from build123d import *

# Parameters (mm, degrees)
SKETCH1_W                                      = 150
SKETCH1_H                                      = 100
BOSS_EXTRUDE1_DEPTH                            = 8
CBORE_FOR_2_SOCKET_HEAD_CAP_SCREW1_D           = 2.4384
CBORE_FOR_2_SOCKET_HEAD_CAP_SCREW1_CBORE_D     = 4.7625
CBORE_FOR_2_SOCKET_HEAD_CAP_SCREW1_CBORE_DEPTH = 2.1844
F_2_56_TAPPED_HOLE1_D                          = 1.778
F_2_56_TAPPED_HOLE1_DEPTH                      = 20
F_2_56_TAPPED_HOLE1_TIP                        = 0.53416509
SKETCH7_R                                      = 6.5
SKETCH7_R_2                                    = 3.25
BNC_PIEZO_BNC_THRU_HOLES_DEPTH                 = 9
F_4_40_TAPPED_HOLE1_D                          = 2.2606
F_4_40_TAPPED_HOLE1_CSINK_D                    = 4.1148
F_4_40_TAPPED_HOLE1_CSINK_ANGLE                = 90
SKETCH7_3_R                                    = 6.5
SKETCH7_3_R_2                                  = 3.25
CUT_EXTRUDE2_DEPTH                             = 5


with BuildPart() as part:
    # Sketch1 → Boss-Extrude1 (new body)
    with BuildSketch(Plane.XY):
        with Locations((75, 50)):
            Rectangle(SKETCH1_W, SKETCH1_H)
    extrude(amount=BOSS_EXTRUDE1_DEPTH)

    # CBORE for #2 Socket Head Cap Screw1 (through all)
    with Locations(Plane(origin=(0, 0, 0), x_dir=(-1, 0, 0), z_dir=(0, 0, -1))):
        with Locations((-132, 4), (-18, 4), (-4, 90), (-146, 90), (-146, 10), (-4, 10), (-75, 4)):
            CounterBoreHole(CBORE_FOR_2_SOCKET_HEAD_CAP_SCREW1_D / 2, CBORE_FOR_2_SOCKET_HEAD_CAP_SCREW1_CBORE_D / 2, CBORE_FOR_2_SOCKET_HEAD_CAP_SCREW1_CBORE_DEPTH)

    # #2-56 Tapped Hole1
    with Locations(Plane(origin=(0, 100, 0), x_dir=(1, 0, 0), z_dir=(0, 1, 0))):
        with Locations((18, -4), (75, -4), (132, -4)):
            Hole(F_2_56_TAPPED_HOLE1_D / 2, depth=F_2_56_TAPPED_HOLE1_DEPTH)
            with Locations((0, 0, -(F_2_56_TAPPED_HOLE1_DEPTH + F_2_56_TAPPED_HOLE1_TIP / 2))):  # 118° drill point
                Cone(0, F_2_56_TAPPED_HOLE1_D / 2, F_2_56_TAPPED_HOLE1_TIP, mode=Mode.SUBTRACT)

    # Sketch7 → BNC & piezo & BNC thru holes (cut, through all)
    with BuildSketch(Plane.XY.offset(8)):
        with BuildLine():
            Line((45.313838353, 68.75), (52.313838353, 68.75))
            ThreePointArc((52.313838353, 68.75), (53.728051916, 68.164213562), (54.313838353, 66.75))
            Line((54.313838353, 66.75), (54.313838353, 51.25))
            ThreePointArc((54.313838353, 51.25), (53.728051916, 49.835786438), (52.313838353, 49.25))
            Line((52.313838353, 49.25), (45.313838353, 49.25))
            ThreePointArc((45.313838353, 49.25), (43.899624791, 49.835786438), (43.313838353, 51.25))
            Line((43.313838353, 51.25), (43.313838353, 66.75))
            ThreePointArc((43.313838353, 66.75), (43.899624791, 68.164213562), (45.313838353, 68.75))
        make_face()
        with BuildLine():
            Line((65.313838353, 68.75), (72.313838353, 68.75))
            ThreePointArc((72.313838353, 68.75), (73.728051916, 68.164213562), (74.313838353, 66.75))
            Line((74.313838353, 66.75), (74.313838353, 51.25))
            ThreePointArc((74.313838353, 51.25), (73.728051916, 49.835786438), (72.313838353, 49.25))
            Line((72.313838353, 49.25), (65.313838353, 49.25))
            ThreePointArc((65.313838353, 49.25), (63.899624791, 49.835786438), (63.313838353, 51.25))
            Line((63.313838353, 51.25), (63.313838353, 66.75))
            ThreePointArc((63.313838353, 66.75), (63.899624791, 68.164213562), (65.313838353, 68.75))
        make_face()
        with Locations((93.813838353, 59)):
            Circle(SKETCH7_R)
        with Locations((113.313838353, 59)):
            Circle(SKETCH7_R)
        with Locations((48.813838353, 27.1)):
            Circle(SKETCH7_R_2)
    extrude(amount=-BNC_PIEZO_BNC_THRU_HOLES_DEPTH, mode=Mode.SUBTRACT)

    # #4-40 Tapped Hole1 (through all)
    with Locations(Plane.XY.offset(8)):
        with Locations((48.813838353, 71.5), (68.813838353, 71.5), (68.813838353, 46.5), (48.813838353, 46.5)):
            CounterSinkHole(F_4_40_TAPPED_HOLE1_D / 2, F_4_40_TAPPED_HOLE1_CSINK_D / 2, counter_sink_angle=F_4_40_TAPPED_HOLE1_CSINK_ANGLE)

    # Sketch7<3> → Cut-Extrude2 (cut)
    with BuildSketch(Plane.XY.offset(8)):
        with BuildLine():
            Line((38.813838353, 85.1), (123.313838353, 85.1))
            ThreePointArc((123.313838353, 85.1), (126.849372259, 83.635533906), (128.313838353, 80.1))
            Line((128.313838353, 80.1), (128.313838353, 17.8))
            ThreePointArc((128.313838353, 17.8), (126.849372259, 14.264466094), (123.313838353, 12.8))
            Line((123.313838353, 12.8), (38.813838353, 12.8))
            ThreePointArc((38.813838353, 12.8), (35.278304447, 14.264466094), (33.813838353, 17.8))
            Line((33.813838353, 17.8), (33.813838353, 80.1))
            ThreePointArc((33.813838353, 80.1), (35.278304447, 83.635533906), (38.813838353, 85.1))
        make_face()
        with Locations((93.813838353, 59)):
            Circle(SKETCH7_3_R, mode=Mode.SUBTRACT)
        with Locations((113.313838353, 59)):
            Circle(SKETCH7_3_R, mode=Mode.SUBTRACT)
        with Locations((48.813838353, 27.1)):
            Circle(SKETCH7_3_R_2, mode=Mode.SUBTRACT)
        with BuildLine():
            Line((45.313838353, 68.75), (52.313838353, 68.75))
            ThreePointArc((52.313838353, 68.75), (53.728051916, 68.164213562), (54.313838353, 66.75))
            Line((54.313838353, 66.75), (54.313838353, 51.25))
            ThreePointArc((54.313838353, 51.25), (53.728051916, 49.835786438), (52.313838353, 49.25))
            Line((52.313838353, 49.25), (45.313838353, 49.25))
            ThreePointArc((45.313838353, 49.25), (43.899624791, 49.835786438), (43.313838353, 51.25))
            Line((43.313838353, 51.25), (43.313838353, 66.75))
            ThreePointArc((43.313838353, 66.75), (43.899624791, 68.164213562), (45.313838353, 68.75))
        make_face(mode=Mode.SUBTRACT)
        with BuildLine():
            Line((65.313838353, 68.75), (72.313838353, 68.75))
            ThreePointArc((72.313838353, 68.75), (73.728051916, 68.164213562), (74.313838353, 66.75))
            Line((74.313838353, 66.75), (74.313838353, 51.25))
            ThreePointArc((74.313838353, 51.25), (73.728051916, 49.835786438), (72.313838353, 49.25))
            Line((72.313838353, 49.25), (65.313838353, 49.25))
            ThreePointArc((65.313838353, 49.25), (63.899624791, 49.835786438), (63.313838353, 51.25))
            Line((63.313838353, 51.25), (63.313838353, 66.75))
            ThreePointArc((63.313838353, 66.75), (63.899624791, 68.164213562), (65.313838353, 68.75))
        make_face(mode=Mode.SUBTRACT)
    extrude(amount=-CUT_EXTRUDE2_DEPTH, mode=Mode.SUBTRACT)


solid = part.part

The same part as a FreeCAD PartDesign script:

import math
import FreeCAD as App
import Part
import Sketcher

V = App.Vector

doc = App.newDocument("Part")
params = doc.addObject("Spreadsheet::Sheet", "Params")
for row, (alias, value) in enumerate([
    ("sketch1_width", "150 mm"),
    ("sketch1_height", "100 mm"),
    ("pad1_length", "8 mm"),
    ("hole_diameter", "2.4384 mm"),
    ("hole_cbore_diameter", "4.7625 mm"),
    ("hole_cbore_depth", "2.1844 mm"),
    ("hole2_diameter", "1.778 mm"),
    ("hole2_depth", "20 mm"),
    ("sketch4_diameter", "13 mm"),
    ("sketch4_radius", "2 mm"),
    ("sketch4_diameter2", "6.5 mm"),
    ("sketch4_width", "7 mm"),
    ("sketch4_height", "15.5 mm"),
    ("hole3_diameter", "2.2606 mm"),
    ("hole3_csink_diameter", "4.1148 mm"),
    ("sketch6_diameter", "13 mm"),
    ("sketch6_radius", "5 mm"),
    ("sketch6_radius2", "2 mm"),
    ("sketch6_diameter2", "6.5 mm"),
    ("sketch6_width", "7 mm"),
    ("pocket2_length", "5 mm"),
], start=1):
    params.set(f"A{row}", alias)
    params.set(f"B{row}", "=" + value)
    params.setAlias(f"B{row}", alias)

body = doc.addObject("PartDesign::Body", "Body")

# Sketch on XY plane
sketch1 = doc.addObject("Sketcher::SketchObject", "Sketch")
body.addObject(sketch1)
sketch1.AttachmentSupport = (doc.XY_Plane, [""])
sketch1.MapMode = "FlatFace"
sketch1.addGeometry([
    Part.LineSegment(V(0, 100, 0), V(0, 0, 0)),
    Part.LineSegment(V(0, 0, 0), V(150, 0, 0)),
    Part.LineSegment(V(150, 0, 0), V(150, 100, 0)),
    Part.LineSegment(V(150, 100, 0), V(0, 100, 0)),
], False)
sketch1.addConstraint([
    Sketcher.Constraint("Coincident", 0, 2, 1, 1),
    Sketcher.Constraint("Coincident", 1, 2, 2, 1),
    Sketcher.Constraint("Coincident", 2, 2, 3, 1),
    Sketcher.Constraint("Coincident", 3, 2, 0, 1),
    Sketcher.Constraint("Vertical", 0),
    Sketcher.Constraint("Horizontal", 1),
    Sketcher.Constraint("Vertical", 2),
    Sketcher.Constraint("Horizontal", 3),
    Sketcher.Constraint("Coincident", 0, 2, -1, 1),
    Sketcher.Constraint("DistanceX", 1, 1, 1, 2, 150.0),
    Sketcher.Constraint("DistanceY", 0, 2, 0, 1, 100.0),
])
sketch1.setExpression("Constraints[9]", "Params.sketch1_width")
sketch1.setExpression("Constraints[10]", "Params.sketch1_height")
pad1 = doc.addObject("PartDesign::Pad", "Pad")
body.addObject(pad1)
pad1.Profile = sketch1
pad1.setExpression("Length", "Params.pad1_length")

# Sketch on XY plane
sketch2 = doc.addObject("Sketcher::SketchObject", "Sketch001")
body.addObject(sketch2)
sketch2.AttachmentSupport = (doc.XY_Plane, [""])
sketch2.MapMode = "FlatFace"
sketch2.addGeometry([
    Part.Circle(V(132, 4, 0), V(0, 0, 1), 1.2192),  # 0
    Part.Circle(V(18, 4, 0), V(0, 0, 1), 1.2192),  # 1
    Part.Circle(V(4, 90, 0), V(0, 0, 1), 1.2192),  # 2
    Part.Circle(V(146, 90, 0), V(0, 0, 1), 1.2192),  # 3
    Part.Circle(V(146, 10, 0), V(0, 0, 1), 1.2192),  # 4
    Part.Circle(V(4, 10, 0), V(0, 0, 1), 1.2192),  # 5
    Part.Circle(V(75, 4, 0), V(0, 0, 1), 1.2192),  # 6
], False)
sketch2.addConstraint([
    Sketcher.Constraint("Equal", 0, 1),
    Sketcher.Constraint("Equal", 1, 2),
    Sketcher.Constraint("Equal", 2, 3),
    Sketcher.Constraint("Equal", 3, 4),
    Sketcher.Constraint("Equal", 4, 5),
    Sketcher.Constraint("Equal", 5, 6),
    Sketcher.Constraint("Horizontal", 0, 3, 1, 3),
    Sketcher.Constraint("Horizontal", 2, 3, 3, 3),
    Sketcher.Constraint("Horizontal", 4, 3, 5, 3),
    Sketcher.Constraint("Horizontal", 1, 3, 6, 3),
    Sketcher.Constraint("Vertical", 3, 3, 4, 3),
    Sketcher.Constraint("Vertical", 2, 3, 5, 3),
    Sketcher.Constraint("DistanceX", -1, 1, 0, 3, 132.0),
    Sketcher.Constraint("DistanceY", -1, 1, 0, 3, 4.0),
    Sketcher.Constraint("DistanceX", -1, 1, 1, 3, 18.0),
    Sketcher.Constraint("DistanceX", -1, 1, 2, 3, 4.0),
    Sketcher.Constraint("DistanceY", -1, 1, 2, 3, 90.0),
    Sketcher.Constraint("DistanceX", -1, 1, 3, 3, 146.0),
    Sketcher.Constraint("DistanceY", -1, 1, 4, 3, 10.0),
    Sketcher.Constraint("DistanceX", -1, 1, 6, 3, 75.0),
    Sketcher.Constraint("Diameter", 0, 2.4384),
])
doc.recompute()
hole = doc.addObject("PartDesign::Hole", "Hole")
body.addObject(hole)
hole.Profile = sketch2
hole.ThreadType = "None"
hole.setExpression("Diameter", "Params.hole_diameter")
hole.DepthType = "ThroughAll"
hole.HoleCutType = "Counterbore"
hole.setExpression("HoleCutDiameter", "Params.hole_cbore_diameter")
hole.setExpression("HoleCutDepth", "Params.hole_cbore_depth")
hole.Reversed = True

# Sketch on XZ plane
sketch3 = doc.addObject("Sketcher::SketchObject", "Sketch002")
body.addObject(sketch3)
sketch3.AttachmentSupport = (doc.XZ_Plane, [""])
sketch3.MapMode = "FlatFace"
sketch3.AttachmentOffset = App.Placement(V(0, 0, -100), App.Rotation())
sketch3.addGeometry([
    Part.Circle(V(18, 4, 0), V(0, 0, 1), 0.889),
    Part.Circle(V(75, 4, 0), V(0, 0, 1), 0.889),
    Part.Circle(V(132, 4, 0), V(0, 0, 1), 0.889),
], False)
sketch3.addConstraint([
    Sketcher.Constraint("Equal", 0, 1),
    Sketcher.Constraint("Equal", 1, 2),
    Sketcher.Constraint("Horizontal", 0, 3, 1, 3),
    Sketcher.Constraint("Horizontal", 1, 3, 2, 3),
    Sketcher.Constraint("Diameter", 0, 1.778),
    Sketcher.Constraint("DistanceX", -1, 1, 0, 3, 18.0),
    Sketcher.Constraint("DistanceY", -1, 1, 0, 3, 4.0),
    Sketcher.Constraint("DistanceX", -1, 1, 1, 3, 75.0),
    Sketcher.Constraint("DistanceX", -1, 1, 2, 3, 132.0),
])
doc.recompute()
hole2 = doc.addObject("PartDesign::Hole", "Hole001")
body.addObject(hole2)
hole2.Profile = sketch3
hole2.ThreadType = "None"
hole2.setExpression("Diameter", "Params.hole2_diameter")
hole2.DepthType = "Dimension"
hole2.setExpression("Depth", "Params.hole2_depth")
hole2.DrillPoint = "Angled"
hole2.DrillPointAngle = 118
hole2.Reversed = True

# Sketch on XY plane
sketch4 = doc.addObject("Sketcher::SketchObject", "Sketch003")
body.addObject(sketch4)
sketch4.AttachmentSupport = (doc.XY_Plane, [""])
sketch4.MapMode = "FlatFace"
sketch4.AttachmentOffset = App.Placement(V(0, 0, 8), App.Rotation())
sketch4.addGeometry([
    Part.LineSegment(V(52.313838, 68.75, 0), V(45.313838, 68.75, 0)),  # 0
    Part.ArcOfCircle(Part.Circle(V(45.313838, 66.75, 0), V(0, 0, 1), 2), math.radians(90), math.radians(180)),  # 1
    Part.LineSegment(V(43.313838, 66.75, 0), V(43.313838, 51.25, 0)),  # 2
    Part.ArcOfCircle(Part.Circle(V(45.313838, 51.25, 0), V(0, 0, 1), 2), math.radians(-180), math.radians(-90)),  # 3
    Part.LineSegment(V(45.313838, 49.25, 0), V(52.313838, 49.25, 0)),  # 4
    Part.ArcOfCircle(Part.Circle(V(52.313838, 51.25, 0), V(0, 0, 1), 2), math.radians(-90), math.radians(0)),  # 5
    Part.LineSegment(V(54.313838, 51.25, 0), V(54.313838, 66.75, 0)),  # 6
    Part.ArcOfCircle(Part.Circle(V(52.313838, 66.75, 0), V(0, 0, 1), 2), math.radians(0), math.radians(90)),  # 7
    Part.LineSegment(V(72.313838, 68.75, 0), V(65.313838, 68.75, 0)),  # 8
    Part.ArcOfCircle(Part.Circle(V(65.313838, 66.75, 0), V(0, 0, 1), 2), math.radians(90), math.radians(180)),  # 9
    Part.LineSegment(V(63.313838, 66.75, 0), V(63.313838, 51.25, 0)),  # 10
    Part.ArcOfCircle(Part.Circle(V(65.313838, 51.25, 0), V(0, 0, 1), 2), math.radians(-180), math.radians(-90)),  # 11
    Part.LineSegment(V(65.313838, 49.25, 0), V(72.313838, 49.25, 0)),  # 12
    Part.ArcOfCircle(Part.Circle(V(72.313838, 51.25, 0), V(0, 0, 1), 2), math.radians(-90), math.radians(0)),  # 13
    Part.LineSegment(V(74.313838, 51.25, 0), V(74.313838, 66.75, 0)),  # 14
    Part.ArcOfCircle(Part.Circle(V(72.313838, 66.75, 0), V(0, 0, 1), 2), math.radians(0), math.radians(90)),  # 15
    Part.Circle(V(93.813838, 59, 0), V(0, 0, 1), 6.5),  # 16
    Part.Circle(V(113.313838, 59, 0), V(0, 0, 1), 6.5),  # 17
    Part.Circle(V(48.813838, 27.1, 0), V(0, 0, 1), 3.25),  # 18
], False)
sketch4.addConstraint([
    Sketcher.Constraint("Tangent", 0, 2, 1, 1),
    Sketcher.Constraint("Tangent", 1, 2, 2, 1),
    Sketcher.Constraint("Tangent", 2, 2, 3, 1),
    Sketcher.Constraint("Tangent", 3, 2, 4, 1),
    Sketcher.Constraint("Tangent", 4, 2, 5, 1),
    Sketcher.Constraint("Tangent", 5, 2, 6, 1),
    Sketcher.Constraint("Tangent", 6, 2, 7, 1),
    Sketcher.Constraint("Tangent", 7, 2, 0, 1),
    Sketcher.Constraint("Tangent", 8, 2, 9, 1),
    Sketcher.Constraint("Tangent", 9, 2, 10, 1),
    Sketcher.Constraint("Tangent", 10, 2, 11, 1),
    Sketcher.Constraint("Tangent", 11, 2, 12, 1),
    Sketcher.Constraint("Tangent", 12, 2, 13, 1),
    Sketcher.Constraint("Tangent", 13, 2, 14, 1),
    Sketcher.Constraint("Tangent", 14, 2, 15, 1),
    Sketcher.Constraint("Tangent", 15, 2, 8, 1),
    Sketcher.Constraint("Horizontal", 0),
    Sketcher.Constraint("Vertical", 2),
    Sketcher.Constraint("Horizontal", 4),
    Sketcher.Constraint("Vertical", 6),
    Sketcher.Constraint("Horizontal", 8),
    Sketcher.Constraint("Vertical", 10),
    Sketcher.Constraint("Horizontal", 12),
    Sketcher.Constraint("Vertical", 14),
    Sketcher.Constraint("Equal", 1, 3),
    Sketcher.Constraint("Equal", 3, 5),
    Sketcher.Constraint("Equal", 5, 7),
    Sketcher.Constraint("Equal", 7, 9),
    Sketcher.Constraint("Equal", 9, 11),
    Sketcher.Constraint("Equal", 11, 13),
    Sketcher.Constraint("Equal", 13, 15),
    Sketcher.Constraint("Equal", 16, 17),
    Sketcher.Constraint("Horizontal", 7, 3, 9, 3),
    Sketcher.Constraint("Horizontal", 5, 3, 11, 3),
    Sketcher.Constraint("Horizontal", 16, 3, 17, 3),
    Sketcher.Constraint("Equal", 4, 8),
    Sketcher.Constraint("Diameter", 16, 13.0),
    Sketcher.Constraint("Radius", 1, 2.0),
    Sketcher.Constraint("Diameter", 18, 6.5),
    Sketcher.Constraint("DistanceX", 0, 2, 0, 1, 7.0),
    Sketcher.Constraint("DistanceY", 2, 2, 2, 1, 15.5),
    Sketcher.Constraint("DistanceY", -1, 1, 16, 3, 59.0),
    Sketcher.Constraint("DistanceX", 7, 3, 9, 3, 13.0),
    Sketcher.Constraint("DistanceX", 13, 3, 17, 3, 41.0),
    Sketcher.Constraint("DistanceY", -1, 1, 18, 3, 27.1),
    Sketcher.Constraint("DistanceX", 13, 3, 16, 3, 21.5),
    Sketcher.Constraint("DistanceX", 18, 3, 5, 3, 3.5),
    Sketcher.Constraint("DistanceY", -1, 1, 1, 3, 66.75),
    Sketcher.Constraint("DistanceX", -1, 1, 1, 3, 45.313838),
])
sketch4.setExpression("Constraints[36]", "Params.sketch4_diameter")
sketch4.setExpression("Constraints[37]", "Params.sketch4_radius")
sketch4.setExpression("Constraints[38]", "Params.sketch4_diameter2")
sketch4.setExpression("Constraints[39]", "Params.sketch4_width")
sketch4.setExpression("Constraints[40]", "Params.sketch4_height")
pocket1 = doc.addObject("PartDesign::Pocket", "Pocket")
body.addObject(pocket1)
pocket1.Profile = sketch4
pocket1.Type = "ThroughAll"

# Sketch on XY plane
sketch5 = doc.addObject("Sketcher::SketchObject", "Sketch004")
body.addObject(sketch5)
sketch5.AttachmentSupport = (doc.XY_Plane, [""])
sketch5.MapMode = "FlatFace"
sketch5.AttachmentOffset = App.Placement(V(0, 0, 8), App.Rotation())
sketch5.addGeometry([
    Part.Circle(V(48.813838, 71.5, 0), V(0, 0, 1), 1.1303),
    Part.Circle(V(68.813838, 71.5, 0), V(0, 0, 1), 1.1303),
    Part.Circle(V(68.813838, 46.5, 0), V(0, 0, 1), 1.1303),
    Part.Circle(V(48.813838, 46.5, 0), V(0, 0, 1), 1.1303),
], False)
sketch5.addConstraint([
    Sketcher.Constraint("Equal", 0, 1),
    Sketcher.Constraint("Equal", 1, 2),
    Sketcher.Constraint("Equal", 2, 3),
    Sketcher.Constraint("Horizontal", 0, 3, 1, 3),
    Sketcher.Constraint("Horizontal", 2, 3, 3, 3),
    Sketcher.Constraint("Vertical", 1, 3, 2, 3),
    Sketcher.Constraint("Vertical", 0, 3, 3, 3),
    Sketcher.Constraint("DistanceX", 0, 3, 1, 3, 20.0),
    Sketcher.Constraint("DistanceY", 2, 3, 1, 3, 25.0),
    Sketcher.Constraint("Diameter", 0, 2.2606),
    Sketcher.Constraint("DistanceY", -1, 1, 0, 3, 71.5),
    Sketcher.Constraint("DistanceX", -1, 1, 0, 3, 48.813838),
])
doc.recompute()
hole3 = doc.addObject("PartDesign::Hole", "Hole002")
body.addObject(hole3)
hole3.Profile = sketch5
hole3.ThreadType = "None"
hole3.setExpression("Diameter", "Params.hole3_diameter")
hole3.DepthType = "ThroughAll"
hole3.HoleCutType = "Countersink"
hole3.setExpression("HoleCutDiameter", "Params.hole3_csink_diameter")
hole3.HoleCutCountersinkAngle = 90

# Sketch on XY plane
sketch6 = doc.addObject("Sketcher::SketchObject", "Sketch005")
body.addObject(sketch6)
sketch6.AttachmentSupport = (doc.XY_Plane, [""])
sketch6.MapMode = "FlatFace"
sketch6.AttachmentOffset = App.Placement(V(0, 0, 8), App.Rotation())
sketch6.addGeometry([
    Part.LineSegment(V(123.313838, 85.1, 0), V(38.813838, 85.1, 0)),  # 0
    Part.ArcOfCircle(Part.Circle(V(38.813838, 80.1, 0), V(0, 0, 1), 5), math.radians(90), math.radians(180)),  # 1
    Part.LineSegment(V(33.813838, 80.1, 0), V(33.813838, 17.8, 0)),  # 2
    Part.ArcOfCircle(Part.Circle(V(38.813838, 17.8, 0), V(0, 0, 1), 5), math.radians(180), math.radians(270)),  # 3
    Part.LineSegment(V(38.813838, 12.8, 0), V(123.313838, 12.8, 0)),  # 4
    Part.ArcOfCircle(Part.Circle(V(123.313838, 17.8, 0), V(0, 0, 1), 5), math.radians(-90), math.radians(0)),  # 5
    Part.LineSegment(V(128.313838, 17.8, 0), V(128.313838, 80.1, 0)),  # 6
    Part.ArcOfCircle(Part.Circle(V(123.313838, 80.1, 0), V(0, 0, 1), 5), math.radians(0), math.radians(90)),  # 7
    Part.Circle(V(48.813838, 27.1, 0), V(0, 0, 1), 3.25),  # 8
    Part.Circle(V(113.313838, 59, 0), V(0, 0, 1), 6.5),  # 9
    Part.Circle(V(93.813838, 59, 0), V(0, 0, 1), 6.5),  # 10
    Part.LineSegment(V(65.313838, 68.75, 0), V(72.313838, 68.75, 0)),  # 11
    Part.ArcOfCircle(Part.Circle(V(72.313838, 66.75, 0), V(0, 0, 1), 2), math.radians(0), math.radians(90)),  # 12
    Part.LineSegment(V(74.313838, 66.75, 0), V(74.313838, 51.25, 0)),  # 13
    Part.ArcOfCircle(Part.Circle(V(72.313838, 51.25, 0), V(0, 0, 1), 2), math.radians(-90), math.radians(0)),  # 14
    Part.LineSegment(V(72.313838, 49.25, 0), V(65.313838, 49.25, 0)),  # 15
    Part.ArcOfCircle(Part.Circle(V(65.313838, 51.25, 0), V(0, 0, 1), 2), math.radians(-180), math.radians(-90)),  # 16
    Part.LineSegment(V(63.313838, 51.25, 0), V(63.313838, 66.75, 0)),  # 17
    Part.ArcOfCircle(Part.Circle(V(65.313838, 66.75, 0), V(0, 0, 1), 2), math.radians(90), math.radians(180)),  # 18
    Part.LineSegment(V(45.313838, 68.75, 0), V(52.313838, 68.75, 0)),  # 19
    Part.ArcOfCircle(Part.Circle(V(52.313838, 66.75, 0), V(0, 0, 1), 2), math.radians(0), math.radians(90)),  # 20
    Part.LineSegment(V(54.313838, 66.75, 0), V(54.313838, 51.25, 0)),  # 21
    Part.ArcOfCircle(Part.Circle(V(52.313838, 51.25, 0), V(0, 0, 1), 2), math.radians(-90), math.radians(0)),  # 22
    Part.LineSegment(V(52.313838, 49.25, 0), V(45.313838, 49.25, 0)),  # 23
    Part.ArcOfCircle(Part.Circle(V(45.313838, 51.25, 0), V(0, 0, 1), 2), math.radians(-180), math.radians(-90)),  # 24
    Part.LineSegment(V(43.313838, 51.25, 0), V(43.313838, 66.75, 0)),  # 25
    Part.ArcOfCircle(Part.Circle(V(45.313838, 66.75, 0), V(0, 0, 1), 2), math.radians(90), math.radians(180)),  # 26
], False)
sketch6.addConstraint([
    Sketcher.Constraint("Tangent", 0, 2, 1, 1),
    Sketcher.Constraint("Tangent", 1, 2, 2, 1),
    Sketcher.Constraint("Tangent", 2, 2, 3, 1),
    Sketcher.Constraint("Tangent", 3, 2, 4, 1),
    Sketcher.Constraint("Tangent", 4, 2, 5, 1),
    Sketcher.Constraint("Tangent", 5, 2, 6, 1),
    Sketcher.Constraint("Tangent", 6, 2, 7, 1),
    Sketcher.Constraint("Tangent", 7, 2, 0, 1),
    Sketcher.Constraint("Tangent", 11, 2, 12, 2),
    Sketcher.Constraint("Tangent", 12, 1, 13, 1),
    Sketcher.Constraint("Tangent", 13, 2, 14, 2),
    Sketcher.Constraint("Tangent", 14, 1, 15, 1),
    Sketcher.Constraint("Tangent", 15, 2, 16, 2),
    Sketcher.Constraint("Tangent", 16, 1, 17, 1),
    Sketcher.Constraint("Tangent", 17, 2, 18, 2),
    Sketcher.Constraint("Tangent", 18, 1, 11, 1),
    Sketcher.Constraint("Tangent", 19, 2, 20, 2),
    Sketcher.Constraint("Tangent", 20, 1, 21, 1),
    Sketcher.Constraint("Tangent", 21, 2, 22, 2),
    Sketcher.Constraint("Tangent", 22, 1, 23, 1),
    Sketcher.Constraint("Tangent", 23, 2, 24, 2),
    Sketcher.Constraint("Tangent", 24, 1, 25, 1),
    Sketcher.Constraint("Tangent", 25, 2, 26, 2),
    Sketcher.Constraint("Tangent", 26, 1, 19, 1),
    Sketcher.Constraint("Horizontal", 0),
    Sketcher.Constraint("Vertical", 2),
    Sketcher.Constraint("Horizontal", 4),
    Sketcher.Constraint("Vertical", 6),
    Sketcher.Constraint("Horizontal", 11),
    Sketcher.Constraint("Vertical", 13),
    Sketcher.Constraint("Horizontal", 15),
    Sketcher.Constraint("Vertical", 17),
    Sketcher.Constraint("Horizontal", 19),
    Sketcher.Constraint("Vertical", 21),
    Sketcher.Constraint("Horizontal", 23),
    Sketcher.Constraint("Vertical", 25),
    Sketcher.Constraint("Equal", 1, 3),
    Sketcher.Constraint("Equal", 3, 5),
    Sketcher.Constraint("Equal", 5, 7),
    Sketcher.Constraint("Equal", 9, 10),
    Sketcher.Constraint("Equal", 12, 14),
    Sketcher.Constraint("Equal", 14, 16),
    Sketcher.Constraint("Equal", 16, 18),
    Sketcher.Constraint("Equal", 18, 20),
    Sketcher.Constraint("Equal", 20, 22),
    Sketcher.Constraint("Equal", 22, 24),
    Sketcher.Constraint("Equal", 24, 26),
    Sketcher.Constraint("Horizontal", 9, 3, 10, 3),
    Sketcher.Constraint("Horizontal", 18, 3, 20, 3),
    Sketcher.Constraint("Horizontal", 16, 3, 22, 3),
    Sketcher.Constraint("Equal", 15, 19),
    Sketcher.Constraint("Diameter", 9, 13.0),
    Sketcher.Constraint("Radius", 1, 5.0),
    Sketcher.Constraint("Radius", 12, 2.0),
    Sketcher.Constraint("Diameter", 8, 6.5),
    Sketcher.Constraint("DistanceX", 11, 1, 11, 2, 7.0),
    Sketcher.Constraint("DistanceX", 0, 2, 0, 1, 84.5),
    Sketcher.Constraint("DistanceY", 2, 2, 2, 1, 62.3),
    Sketcher.Constraint("DistanceY", 13, 2, 13, 1, 15.5),
    Sketcher.Constraint("DistanceY", -1, 1, 9, 3, 59.0),
    Sketcher.Constraint("DistanceX", 3, 3, 8, 3, 10.0),
    Sketcher.Constraint("DistanceY", 8, 3, 1, 3, 53.0),
    Sketcher.Constraint("DistanceX", 9, 3, 7, 3, 10.0),
    Sketcher.Constraint("DistanceX", 8, 3, 10, 3, 45.0),
    Sketcher.Constraint("DistanceX", 12, 3, 9, 3, 41.0),
    Sketcher.Constraint("DistanceX", 20, 3, 18, 3, 13.0),
    Sketcher.Constraint("DistanceY", -1, 1, 1, 3, 80.1),
    Sketcher.Constraint("DistanceY", -1, 1, 12, 3, 66.75),
    Sketcher.Constraint("DistanceX", -1, 1, 1, 3, 38.813838),
])
sketch6.setExpression("Constraints[51]", "Params.sketch6_diameter")
sketch6.setExpression("Constraints[52]", "Params.sketch6_radius")
sketch6.setExpression("Constraints[53]", "Params.sketch6_radius2")
sketch6.setExpression("Constraints[54]", "Params.sketch6_diameter2")
sketch6.setExpression("Constraints[55]", "Params.sketch6_width")
pocket2 = doc.addObject("PartDesign::Pocket", "Pocket001")
body.addObject(pocket2)
pocket2.Profile = sketch6
pocket2.setExpression("Length", "Params.pocket2_length")

doc.recompute()
